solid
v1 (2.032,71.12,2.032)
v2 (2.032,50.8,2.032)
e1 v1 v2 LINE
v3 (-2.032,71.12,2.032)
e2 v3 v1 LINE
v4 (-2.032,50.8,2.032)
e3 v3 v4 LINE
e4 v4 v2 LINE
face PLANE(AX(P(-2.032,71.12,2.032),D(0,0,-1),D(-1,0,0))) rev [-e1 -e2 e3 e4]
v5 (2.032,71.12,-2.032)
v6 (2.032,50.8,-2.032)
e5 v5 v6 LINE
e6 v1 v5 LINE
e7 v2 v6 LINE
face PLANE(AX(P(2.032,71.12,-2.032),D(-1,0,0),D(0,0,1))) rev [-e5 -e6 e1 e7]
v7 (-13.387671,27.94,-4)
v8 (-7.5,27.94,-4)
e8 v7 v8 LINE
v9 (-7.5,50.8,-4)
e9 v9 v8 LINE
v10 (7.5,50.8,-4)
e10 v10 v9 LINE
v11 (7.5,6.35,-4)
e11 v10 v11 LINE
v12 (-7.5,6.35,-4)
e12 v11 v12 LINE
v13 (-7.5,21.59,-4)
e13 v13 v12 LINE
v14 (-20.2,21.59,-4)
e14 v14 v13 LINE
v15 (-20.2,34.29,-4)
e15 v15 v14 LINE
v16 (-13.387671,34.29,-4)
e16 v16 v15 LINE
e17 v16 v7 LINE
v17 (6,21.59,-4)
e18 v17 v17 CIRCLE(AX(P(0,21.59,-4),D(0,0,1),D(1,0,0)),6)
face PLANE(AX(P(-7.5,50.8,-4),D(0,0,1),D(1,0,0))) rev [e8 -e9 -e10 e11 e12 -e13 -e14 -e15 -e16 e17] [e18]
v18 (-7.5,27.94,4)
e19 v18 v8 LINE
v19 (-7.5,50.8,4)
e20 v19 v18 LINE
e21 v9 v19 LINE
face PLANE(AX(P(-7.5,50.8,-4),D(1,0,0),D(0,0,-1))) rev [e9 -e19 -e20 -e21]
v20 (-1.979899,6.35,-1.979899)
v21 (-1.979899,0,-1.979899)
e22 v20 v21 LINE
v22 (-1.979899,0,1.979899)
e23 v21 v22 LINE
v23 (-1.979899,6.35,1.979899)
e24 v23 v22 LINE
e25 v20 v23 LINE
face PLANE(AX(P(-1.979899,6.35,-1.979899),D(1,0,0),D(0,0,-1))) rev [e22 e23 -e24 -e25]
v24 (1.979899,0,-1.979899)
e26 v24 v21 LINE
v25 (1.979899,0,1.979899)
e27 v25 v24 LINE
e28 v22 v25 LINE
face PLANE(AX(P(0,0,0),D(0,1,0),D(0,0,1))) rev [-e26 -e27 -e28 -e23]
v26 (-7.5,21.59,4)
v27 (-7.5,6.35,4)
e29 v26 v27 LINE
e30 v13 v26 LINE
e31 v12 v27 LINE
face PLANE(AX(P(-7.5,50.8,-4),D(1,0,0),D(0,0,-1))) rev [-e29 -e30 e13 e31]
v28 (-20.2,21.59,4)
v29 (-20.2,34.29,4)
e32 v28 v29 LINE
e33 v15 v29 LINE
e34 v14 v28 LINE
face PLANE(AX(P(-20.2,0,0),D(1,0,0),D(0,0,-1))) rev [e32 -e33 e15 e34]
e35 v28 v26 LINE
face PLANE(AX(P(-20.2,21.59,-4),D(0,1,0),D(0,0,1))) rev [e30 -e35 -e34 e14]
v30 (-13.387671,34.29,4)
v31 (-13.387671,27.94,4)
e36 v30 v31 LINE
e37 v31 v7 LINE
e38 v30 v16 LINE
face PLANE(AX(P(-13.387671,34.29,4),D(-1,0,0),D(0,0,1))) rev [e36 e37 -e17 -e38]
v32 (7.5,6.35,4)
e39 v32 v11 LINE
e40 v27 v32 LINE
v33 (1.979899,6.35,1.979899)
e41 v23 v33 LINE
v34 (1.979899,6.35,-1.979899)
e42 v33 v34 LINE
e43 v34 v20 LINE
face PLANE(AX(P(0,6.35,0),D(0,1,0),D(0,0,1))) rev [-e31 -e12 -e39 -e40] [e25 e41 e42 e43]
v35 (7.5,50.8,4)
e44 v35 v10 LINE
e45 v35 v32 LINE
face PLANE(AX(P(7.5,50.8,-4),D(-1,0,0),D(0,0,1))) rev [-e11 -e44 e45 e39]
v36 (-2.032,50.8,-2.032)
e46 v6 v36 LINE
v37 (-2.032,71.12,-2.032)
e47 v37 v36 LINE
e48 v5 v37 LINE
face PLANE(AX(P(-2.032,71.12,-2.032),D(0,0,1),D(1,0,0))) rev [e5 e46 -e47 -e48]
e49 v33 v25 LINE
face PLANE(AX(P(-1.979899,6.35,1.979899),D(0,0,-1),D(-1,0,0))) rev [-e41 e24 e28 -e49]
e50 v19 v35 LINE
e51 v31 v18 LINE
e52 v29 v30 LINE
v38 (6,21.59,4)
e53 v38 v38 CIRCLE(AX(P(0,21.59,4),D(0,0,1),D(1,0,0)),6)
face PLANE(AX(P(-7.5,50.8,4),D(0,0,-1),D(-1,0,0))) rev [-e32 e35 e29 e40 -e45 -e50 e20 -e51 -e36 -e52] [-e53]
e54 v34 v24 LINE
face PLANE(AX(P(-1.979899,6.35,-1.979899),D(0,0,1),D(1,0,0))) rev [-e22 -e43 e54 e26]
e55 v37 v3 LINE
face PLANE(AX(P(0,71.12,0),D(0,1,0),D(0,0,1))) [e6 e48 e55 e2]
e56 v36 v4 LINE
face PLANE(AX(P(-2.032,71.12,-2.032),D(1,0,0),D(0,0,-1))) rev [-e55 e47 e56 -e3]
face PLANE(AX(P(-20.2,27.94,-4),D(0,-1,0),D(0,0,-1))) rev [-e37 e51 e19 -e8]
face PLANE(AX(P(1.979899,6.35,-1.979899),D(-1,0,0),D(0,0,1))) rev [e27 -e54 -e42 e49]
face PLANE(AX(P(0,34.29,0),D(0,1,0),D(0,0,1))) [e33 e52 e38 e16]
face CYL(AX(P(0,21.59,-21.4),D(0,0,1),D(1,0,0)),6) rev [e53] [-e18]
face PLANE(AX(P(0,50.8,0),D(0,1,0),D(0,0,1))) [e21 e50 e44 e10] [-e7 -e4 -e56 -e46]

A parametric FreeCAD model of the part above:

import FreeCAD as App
import Part
import Sketcher
from FreeCAD import Vector
Q = App.Units.Quantity

doc = App.newDocument("Part")
body = doc.addObject("PartDesign::Body", "Body")

# Sketch on XZ plane
sketch1 = body.newObject("Sketcher::SketchObject", "Sketch")
sketch1.AttachmentSupport = (doc.getObject("XZ_Plane"), [""])
sketch1.MapMode = "FlatFace"
sketch1.addGeometry([
    Part.LineSegment(Vector(-1.979899, -1.979899, 0), Vector(-1.979899, 1.979899, 0)),
    Part.LineSegment(Vector(-1.979899, 1.979899, 0), Vector(1.979899, 1.979899, 0)),
    Part.LineSegment(Vector(1.979899, 1.979899, 0), Vector(1.979899, -1.979899, 0)),
    Part.LineSegment(Vector(1.979899, -1.979899, 0), Vector(-1.979899, -1.979899, 0)),
], False)
sketch1.addConstraint([
    Sketcher.Constraint("Coincident", 0, 2, 1, 1),
    Sketcher.Constraint("Coincident", 1, 2, 2, 1),
    Sketcher.Constraint("Coincident", 2, 2, 3, 1),
    Sketcher.Constraint("Coincident", 3, 2, 0, 1),
    Sketcher.Constraint("Vertical", 0),
    Sketcher.Constraint("Horizontal", 1),
    Sketcher.Constraint("Vertical", 2),
    Sketcher.Constraint("Horizontal", 3),
    Sketcher.Constraint("Symmetric", 0, 2, 2, 2, -1, 1),
    Sketcher.Constraint("Equal", 3, 0),
    Sketcher.Constraint("DistanceX", 0, 2, -1, 1, Q("1.979899 mm")),
])
pad1 = body.newObject("PartDesign::Pad", "Pad")
pad1.Profile = sketch1
pad1.Length = Q("0.25 in")
pad1.Reversed = True

# Sketch on XZ plane
sketch2 = body.newObject("Sketcher::SketchObject", "Sketch001")
sketch2.AttachmentSupport = (doc.getObject("XZ_Plane"), [""])
sketch2.MapMode = "FlatFace"
sketch2.AttachmentOffset = App.Placement(Vector(0, 0, -0.25 * 25.4), App.Rotation())
sketch2.addGeometry([
    Part.LineSegment(Vector(-7.5, -4, 0), Vector(-7.5, 4, 0)),
    Part.LineSegment(Vector(-7.5, 4, 0), Vector(7.5, 4, 0)),
    Part.LineSegment(Vector(7.5, 4, 0), Vector(7.5, -4, 0)),
    Part.LineSegment(Vector(7.5, -4, 0), Vector(-7.5, -4, 0)),
], False)
sketch2.addConstraint([
    Sketcher.Constraint("Coincident", 0, 2, 1, 1),
    Sketcher.Constraint("Coincident", 1, 2, 2, 1),
    Sketcher.Constraint("Coincident", 2, 2, 3, 1),
    Sketcher.Constraint("Coincident", 3, 2, 0, 1),
    Sketcher.Constraint("Vertical", 0),
    Sketcher.Constraint("Horizontal", 1),
    Sketcher.Constraint("Vertical", 2),
    Sketcher.Constraint("Horizontal", 3),
    Sketcher.Constraint("Symmetric", 0, 2, 2, 2, -1, 1),
    Sketcher.Constraint("DistanceX", 1, 1, 1, 2, Q("15 mm")),
    Sketcher.Constraint("DistanceY", 0, 1, 0, 2, Q("8 mm")),
])
pad2 = body.newObject("PartDesign::Pad", "Pad001")
pad2.Profile = sketch2
pad2.Length = Q("1.75 in")
pad2.Reversed = True

# Sketch on XY plane
sketch3 = body.newObject("Sketcher::SketchObject", "Sketch002")
sketch3.AttachmentSupport = (doc.getObject("XY_Plane"), [""])
sketch3.MapMode = "FlatFace"
sketch3.AttachmentOffset = App.Placement(Vector(0, 0, 4), App.Rotation())
sketch3.addGeometry(Part.Circle(Vector(0, 21.59, 0), Vector(0, 0, 1), 6), False)
sketch3.addConstraint([
    Sketcher.Constraint("PointOnObject", 0, 3, -2),
    Sketcher.Constraint("Diameter", 0, Q("12 mm")),
    Sketcher.Constraint("DistanceY", -1, 1, 0, 3, Q("0.85 in")),
])
pocket1 = body.newObject("PartDesign::Pocket", "Pocket")
pocket1.Profile = sketch3
pocket1.Length = Q("1 in")

# Sketch on XZ plane
sketch4 = body.newObject("Sketcher::SketchObject", "Sketch003")
sketch4.AttachmentSupport = (doc.getObject("XZ_Plane"), [""])
sketch4.MapMode = "FlatFace"
sketch4.AttachmentOffset = App.Placement(Vector(0, 0, -2 * 25.4), App.Rotation())
sketch4.addGeometry([
    Part.LineSegment(Vector(-2.032, -2.032, 0), Vector(-2.032, 2.032, 0)),
    Part.LineSegment(Vector(-2.032, 2.032, 0), Vector(2.032, 2.032, 0)),
    Part.LineSegment(Vector(2.032, 2.032, 0), Vector(2.032, -2.032, 0)),
    Part.LineSegment(Vector(2.032, -2.032, 0), Vector(-2.032, -2.032, 0)),
], False)
sketch4.addConstraint([
    Sketcher.Constraint("Coincident", 0, 2, 1, 1),
    Sketcher.Constraint("Coincident", 1, 2, 2, 1),
    Sketcher.Constraint("Coincident", 2, 2, 3, 1),
    Sketcher.Constraint("Coincident", 3, 2, 0, 1),
    Sketcher.Constraint("Vertical", 0),
    Sketcher.Constraint("Horizontal", 1),
    Sketcher.Constraint("Vertical", 2),
    Sketcher.Constraint("Horizontal", 3),
    Sketcher.Constraint("Symmetric", 0, 2, 2, 2, -1, 1),
    Sketcher.Constraint("Equal", 3, 0),
    Sketcher.Constraint("DistanceX", 1, 1, 1, 2, Q("0.16 in")),
])
pad3 = body.newObject("PartDesign::Pad", "Pad002")
pad3.Profile = sketch4
pad3.Length = Q("0.8 in")
pad3.Reversed = True

# Sketch on YZ plane
sketch5 = body.newObject("Sketcher::SketchObject", "Sketch004")
sketch5.AttachmentSupport = (doc.getObject("YZ_Plane"), [""])
sketch5.MapMode = "FlatFace"
sketch5.AttachmentOffset = App.Placement(Vector(0, 0, -7.5), App.Rotation())
sketch5.addGeometry([
    Part.LineSegment(Vector(27.94, -4, 0), Vector(21.59, -4, 0)),
    Part.LineSegment(Vector(21.59, -4, 0), Vector(21.59, 4, 0)),
    Part.LineSegment(Vector(21.59, 4, 0), Vector(27.94, 4, 0)),
    Part.LineSegment(Vector(27.94, 4, 0), Vector(27.94, -4, 0)),
], False)
sketch5.addConstraint([
    Sketcher.Constraint("Coincident", 0, 2, 1, 1),
    Sketcher.Constraint("Coincident", 1, 2, 2, 1),
    Sketcher.Constraint("Coincident", 2, 2, 3, 1),
    Sketcher.Constraint("Coincident", 3, 2, 0, 1),
    Sketcher.Constraint("Horizontal", 0),
    Sketcher.Constraint("Vertical", 1),
    Sketcher.Constraint("Horizontal", 2),
    Sketcher.Constraint("Vertical", 3),
    Sketcher.Constraint("DistanceX", 0, 2, 0, 1, Q("0.25 in")),
    Sketcher.Constraint("DistanceX", -1, 1, 2, 2, Q("1.1 in")),
    Sketcher.Constraint("DistanceY", 1, 1, 1, 2, Q("8 mm")),
    Sketcher.Constraint("DistanceY", 0, 2, -1, 1, Q("4 mm")),
])
pad4 = body.newObject("PartDesign::Pad", "Pad003")
pad4.Profile = sketch5
pad4.Length = Q("0.5 in")
pad4.Reversed = True

# Sketch on XZ plane
sketch6 = body.newObject("Sketcher::SketchObject", "Sketch005")
sketch6.AttachmentSupport = (doc.getObject("XZ_Plane"), [""])
sketch6.MapMode = "FlatFace"
sketch6.AttachmentOffset = App.Placement(Vector(0, 0, -1.1 * 25.4), App.Rotation())
sketch6.addGeometry([
    Part.LineSegment(Vector(-20.2, -4, 0), Vector(-20.2, 4, 0)),
    Part.LineSegment(Vector(-20.2, 4, 0), Vector(-13.387671, 4, 0)),
    Part.LineSegment(Vector(-13.387671, 4, 0), Vector(-13.387671, -4, 0)),
    Part.LineSegment(Vector(-13.387671, -4, 0), Vector(-20.2, -4, 0)),
], False)
sketch6.addConstraint([
    Sketcher.Constraint("Coincident", 0, 2, 1, 1),
    Sketcher.Constraint("Coincident", 1, 2, 2, 1),
    Sketcher.Constraint("Coincident", 2, 2, 3, 1),
    Sketcher.Constraint("Coincident", 3, 2, 0, 1),
    Sketcher.Constraint("Vertical", 0),
    Sketcher.Constraint("Horizontal", 1),
    Sketcher.Constraint("Vertical", 2),
    Sketcher.Constraint("Horizontal", 3),
    Sketcher.Constraint("DistanceY", 0, 1, 0, 2, Q("8 mm")),
    Sketcher.Constraint("DistanceX", 1, 1, 1, 2, Q("6.812329 mm")),
    Sketcher.Constraint("DistanceX", 0, 2, -1, 1, Q("20.2 mm")),
    Sketcher.Constraint("DistanceY", -1, 1, 0, 2, Q("4 mm")),
])
pad5 = body.newObject("PartDesign::Pad", "Pad004")
pad5.Profile = sketch6
pad5.Length = Q("0.25 in")
pad5.Reversed = True

doc.recompute()
